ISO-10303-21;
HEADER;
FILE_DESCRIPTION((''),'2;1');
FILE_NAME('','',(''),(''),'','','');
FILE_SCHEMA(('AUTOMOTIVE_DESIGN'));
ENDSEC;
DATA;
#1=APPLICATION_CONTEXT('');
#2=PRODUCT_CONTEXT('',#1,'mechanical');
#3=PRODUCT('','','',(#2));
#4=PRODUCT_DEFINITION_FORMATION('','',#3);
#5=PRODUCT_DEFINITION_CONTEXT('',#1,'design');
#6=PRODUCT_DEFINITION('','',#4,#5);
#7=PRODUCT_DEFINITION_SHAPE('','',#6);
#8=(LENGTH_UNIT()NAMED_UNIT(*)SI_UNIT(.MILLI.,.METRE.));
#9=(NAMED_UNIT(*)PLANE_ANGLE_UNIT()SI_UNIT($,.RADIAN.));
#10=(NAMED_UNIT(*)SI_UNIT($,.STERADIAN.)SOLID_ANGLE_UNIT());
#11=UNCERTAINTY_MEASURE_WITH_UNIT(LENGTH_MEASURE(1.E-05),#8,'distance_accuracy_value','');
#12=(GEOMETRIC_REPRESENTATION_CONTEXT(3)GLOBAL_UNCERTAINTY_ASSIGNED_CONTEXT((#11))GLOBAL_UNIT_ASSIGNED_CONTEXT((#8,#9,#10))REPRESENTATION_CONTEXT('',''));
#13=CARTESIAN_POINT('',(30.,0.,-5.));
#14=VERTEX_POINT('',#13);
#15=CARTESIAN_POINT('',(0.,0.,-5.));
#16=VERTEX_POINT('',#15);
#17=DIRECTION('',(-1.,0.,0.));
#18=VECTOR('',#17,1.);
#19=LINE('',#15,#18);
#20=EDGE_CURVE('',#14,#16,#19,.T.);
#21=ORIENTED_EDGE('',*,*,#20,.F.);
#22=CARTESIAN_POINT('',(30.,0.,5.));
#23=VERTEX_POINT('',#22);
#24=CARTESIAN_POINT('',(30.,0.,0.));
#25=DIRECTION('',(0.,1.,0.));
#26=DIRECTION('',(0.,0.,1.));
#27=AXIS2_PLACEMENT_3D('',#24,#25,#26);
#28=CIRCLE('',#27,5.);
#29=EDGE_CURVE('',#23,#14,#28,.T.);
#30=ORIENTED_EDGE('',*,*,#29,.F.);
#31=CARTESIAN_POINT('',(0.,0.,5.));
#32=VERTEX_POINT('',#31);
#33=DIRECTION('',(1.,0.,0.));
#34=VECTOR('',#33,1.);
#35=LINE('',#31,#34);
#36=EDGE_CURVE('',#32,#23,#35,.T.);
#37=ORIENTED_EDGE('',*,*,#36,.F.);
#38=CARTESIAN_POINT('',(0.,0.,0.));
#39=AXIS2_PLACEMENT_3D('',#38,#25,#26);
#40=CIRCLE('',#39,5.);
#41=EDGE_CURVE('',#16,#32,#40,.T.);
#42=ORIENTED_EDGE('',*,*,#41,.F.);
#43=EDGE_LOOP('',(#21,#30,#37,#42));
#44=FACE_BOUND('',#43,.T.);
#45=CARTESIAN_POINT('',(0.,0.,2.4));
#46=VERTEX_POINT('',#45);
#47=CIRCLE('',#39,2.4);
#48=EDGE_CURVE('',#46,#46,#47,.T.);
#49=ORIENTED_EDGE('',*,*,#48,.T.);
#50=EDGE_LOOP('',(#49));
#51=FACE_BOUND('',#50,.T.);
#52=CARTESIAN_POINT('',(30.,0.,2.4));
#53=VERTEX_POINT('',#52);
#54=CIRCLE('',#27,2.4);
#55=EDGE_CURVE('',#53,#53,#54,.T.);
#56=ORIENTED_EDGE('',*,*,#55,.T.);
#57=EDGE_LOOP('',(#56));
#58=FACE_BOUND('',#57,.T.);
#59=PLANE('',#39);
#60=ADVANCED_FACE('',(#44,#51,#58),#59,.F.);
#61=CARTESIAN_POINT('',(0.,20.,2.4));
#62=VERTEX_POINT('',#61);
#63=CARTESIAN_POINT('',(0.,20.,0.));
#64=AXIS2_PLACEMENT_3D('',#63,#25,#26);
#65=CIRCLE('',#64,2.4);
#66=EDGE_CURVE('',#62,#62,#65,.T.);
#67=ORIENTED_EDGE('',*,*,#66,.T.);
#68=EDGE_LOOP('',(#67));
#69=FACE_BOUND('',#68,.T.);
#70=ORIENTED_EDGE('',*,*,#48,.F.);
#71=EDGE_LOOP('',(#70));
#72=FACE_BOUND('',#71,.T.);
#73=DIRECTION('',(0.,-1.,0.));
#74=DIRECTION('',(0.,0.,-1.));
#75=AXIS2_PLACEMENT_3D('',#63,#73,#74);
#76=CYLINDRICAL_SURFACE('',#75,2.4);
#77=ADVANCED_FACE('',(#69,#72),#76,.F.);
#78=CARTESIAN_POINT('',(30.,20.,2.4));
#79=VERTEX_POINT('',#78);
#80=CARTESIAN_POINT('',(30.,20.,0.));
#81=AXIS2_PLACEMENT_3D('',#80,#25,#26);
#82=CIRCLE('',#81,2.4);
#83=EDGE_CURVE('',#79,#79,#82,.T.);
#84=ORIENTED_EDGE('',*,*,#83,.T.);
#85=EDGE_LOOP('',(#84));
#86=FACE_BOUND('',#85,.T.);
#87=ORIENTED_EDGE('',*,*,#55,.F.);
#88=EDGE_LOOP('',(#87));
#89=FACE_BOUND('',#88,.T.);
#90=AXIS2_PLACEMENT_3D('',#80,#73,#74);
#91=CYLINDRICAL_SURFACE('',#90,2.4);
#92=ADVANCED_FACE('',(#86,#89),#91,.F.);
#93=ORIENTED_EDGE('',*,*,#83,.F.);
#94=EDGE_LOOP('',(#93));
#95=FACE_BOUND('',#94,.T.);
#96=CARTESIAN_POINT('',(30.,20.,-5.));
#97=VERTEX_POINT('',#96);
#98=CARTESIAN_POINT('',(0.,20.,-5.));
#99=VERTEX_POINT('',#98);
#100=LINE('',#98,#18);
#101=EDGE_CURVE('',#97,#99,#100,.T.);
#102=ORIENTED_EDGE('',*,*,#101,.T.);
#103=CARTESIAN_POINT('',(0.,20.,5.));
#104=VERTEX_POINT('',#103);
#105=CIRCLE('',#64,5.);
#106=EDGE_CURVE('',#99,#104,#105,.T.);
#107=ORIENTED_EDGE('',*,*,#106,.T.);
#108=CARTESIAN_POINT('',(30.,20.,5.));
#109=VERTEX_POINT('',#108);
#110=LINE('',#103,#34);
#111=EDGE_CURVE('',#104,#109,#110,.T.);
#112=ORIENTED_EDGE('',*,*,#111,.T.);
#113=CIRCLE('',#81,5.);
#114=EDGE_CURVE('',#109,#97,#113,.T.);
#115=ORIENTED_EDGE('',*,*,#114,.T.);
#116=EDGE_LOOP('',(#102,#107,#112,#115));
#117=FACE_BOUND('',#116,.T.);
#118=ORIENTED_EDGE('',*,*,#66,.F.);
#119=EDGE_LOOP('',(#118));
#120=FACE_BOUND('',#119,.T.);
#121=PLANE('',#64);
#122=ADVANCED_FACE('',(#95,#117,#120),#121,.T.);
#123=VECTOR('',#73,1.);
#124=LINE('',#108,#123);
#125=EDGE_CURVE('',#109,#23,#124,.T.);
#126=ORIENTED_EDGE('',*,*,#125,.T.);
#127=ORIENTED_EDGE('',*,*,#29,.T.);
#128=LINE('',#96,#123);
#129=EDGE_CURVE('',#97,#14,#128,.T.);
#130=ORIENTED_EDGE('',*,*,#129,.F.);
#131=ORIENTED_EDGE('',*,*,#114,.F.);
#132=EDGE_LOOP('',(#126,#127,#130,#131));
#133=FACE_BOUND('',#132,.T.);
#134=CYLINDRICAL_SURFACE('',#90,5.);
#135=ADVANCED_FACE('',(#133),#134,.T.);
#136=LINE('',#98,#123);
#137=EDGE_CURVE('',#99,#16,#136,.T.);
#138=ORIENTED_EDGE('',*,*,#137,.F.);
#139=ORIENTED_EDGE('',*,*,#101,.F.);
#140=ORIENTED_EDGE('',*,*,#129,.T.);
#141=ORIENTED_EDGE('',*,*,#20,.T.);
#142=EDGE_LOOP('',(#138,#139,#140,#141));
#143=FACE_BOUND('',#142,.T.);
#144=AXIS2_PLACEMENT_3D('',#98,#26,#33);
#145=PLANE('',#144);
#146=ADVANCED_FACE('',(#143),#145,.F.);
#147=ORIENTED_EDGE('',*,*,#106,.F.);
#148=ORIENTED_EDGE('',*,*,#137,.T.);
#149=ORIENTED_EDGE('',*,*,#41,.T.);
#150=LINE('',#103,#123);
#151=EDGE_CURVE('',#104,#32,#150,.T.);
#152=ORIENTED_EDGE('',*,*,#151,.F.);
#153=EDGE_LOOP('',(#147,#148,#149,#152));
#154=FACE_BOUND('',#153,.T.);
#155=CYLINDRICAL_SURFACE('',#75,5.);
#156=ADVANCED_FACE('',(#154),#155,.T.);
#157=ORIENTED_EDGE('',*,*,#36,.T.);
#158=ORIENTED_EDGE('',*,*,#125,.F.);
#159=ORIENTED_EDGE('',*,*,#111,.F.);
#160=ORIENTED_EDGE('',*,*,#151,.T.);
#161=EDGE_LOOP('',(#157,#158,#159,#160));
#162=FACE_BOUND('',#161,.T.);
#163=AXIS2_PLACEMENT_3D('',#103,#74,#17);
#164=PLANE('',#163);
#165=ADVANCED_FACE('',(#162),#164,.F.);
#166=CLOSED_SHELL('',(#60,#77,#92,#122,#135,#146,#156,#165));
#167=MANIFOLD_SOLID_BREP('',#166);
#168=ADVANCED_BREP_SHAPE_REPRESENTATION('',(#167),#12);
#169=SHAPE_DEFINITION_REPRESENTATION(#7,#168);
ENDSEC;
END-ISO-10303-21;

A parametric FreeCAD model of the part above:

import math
import FreeCAD as App
import Part
import Sketcher

V = App.Vector

doc = App.newDocument("Part")
body = doc.addObject("PartDesign::Body", "Body")

sketch1 = doc.addObject("Sketcher::SketchObject", "Sketch")
body.addObject(sketch1)
sketch1.AttachmentSupport = (doc.XZ_Plane, [""])
sketch1.MapMode = "FlatFace"
sketch1.addGeometry([
    Part.LineSegment(V(30, -5, 0), V(0, -5, 0)),
    Part.ArcOfCircle(Part.Circle(V(0, 0, 0), V(0, 0, 1), 5), math.radians(90), math.radians(270)),
    Part.LineSegment(V(0, 5, 0), V(30, 5, 0)),
    Part.ArcOfCircle(Part.Circle(V(30, 0, 0), V(0, 0, 1), 5), math.radians(-90), math.radians(90)),
    Part.Circle(V(30, 0, 0), V(0, 0, 1), 2.4),
    Part.Circle(V(0, 0, 0), V(0, 0, 1), 2.4),
], False)
sketch1.addConstraint([
    Sketcher.Constraint("Tangent", 0, 2, 1, 2),
    Sketcher.Constraint("Tangent", 1, 1, 2, 1),
    Sketcher.Constraint("Tangent", 2, 2, 3, 2),
    Sketcher.Constraint("Tangent", 3, 1, 0, 1),
    Sketcher.Constraint("Horizontal", 0),
    Sketcher.Constraint("Horizontal", 2),
    Sketcher.Constraint("Coincident", 1, 3, -1, 1),
    Sketcher.Constraint("Coincident", 5, 3, -1, 1),
    Sketcher.Constraint("Coincident", 4, 3, 3, 3),
    Sketcher.Constraint("Equal", 4, 5),
    Sketcher.Constraint("Radius", 1, 5.0),
    Sketcher.Constraint("Diameter", 4, 4.8),
    Sketcher.Constraint("DistanceX", 0, 2, 0, 1, 30.0),
])
pad1 = doc.addObject("PartDesign::Pad", "Pad")
body.addObject(pad1)
pad1.Profile = sketch1
pad1.Length = 20
pad1.Reversed = True

doc.recompute()
